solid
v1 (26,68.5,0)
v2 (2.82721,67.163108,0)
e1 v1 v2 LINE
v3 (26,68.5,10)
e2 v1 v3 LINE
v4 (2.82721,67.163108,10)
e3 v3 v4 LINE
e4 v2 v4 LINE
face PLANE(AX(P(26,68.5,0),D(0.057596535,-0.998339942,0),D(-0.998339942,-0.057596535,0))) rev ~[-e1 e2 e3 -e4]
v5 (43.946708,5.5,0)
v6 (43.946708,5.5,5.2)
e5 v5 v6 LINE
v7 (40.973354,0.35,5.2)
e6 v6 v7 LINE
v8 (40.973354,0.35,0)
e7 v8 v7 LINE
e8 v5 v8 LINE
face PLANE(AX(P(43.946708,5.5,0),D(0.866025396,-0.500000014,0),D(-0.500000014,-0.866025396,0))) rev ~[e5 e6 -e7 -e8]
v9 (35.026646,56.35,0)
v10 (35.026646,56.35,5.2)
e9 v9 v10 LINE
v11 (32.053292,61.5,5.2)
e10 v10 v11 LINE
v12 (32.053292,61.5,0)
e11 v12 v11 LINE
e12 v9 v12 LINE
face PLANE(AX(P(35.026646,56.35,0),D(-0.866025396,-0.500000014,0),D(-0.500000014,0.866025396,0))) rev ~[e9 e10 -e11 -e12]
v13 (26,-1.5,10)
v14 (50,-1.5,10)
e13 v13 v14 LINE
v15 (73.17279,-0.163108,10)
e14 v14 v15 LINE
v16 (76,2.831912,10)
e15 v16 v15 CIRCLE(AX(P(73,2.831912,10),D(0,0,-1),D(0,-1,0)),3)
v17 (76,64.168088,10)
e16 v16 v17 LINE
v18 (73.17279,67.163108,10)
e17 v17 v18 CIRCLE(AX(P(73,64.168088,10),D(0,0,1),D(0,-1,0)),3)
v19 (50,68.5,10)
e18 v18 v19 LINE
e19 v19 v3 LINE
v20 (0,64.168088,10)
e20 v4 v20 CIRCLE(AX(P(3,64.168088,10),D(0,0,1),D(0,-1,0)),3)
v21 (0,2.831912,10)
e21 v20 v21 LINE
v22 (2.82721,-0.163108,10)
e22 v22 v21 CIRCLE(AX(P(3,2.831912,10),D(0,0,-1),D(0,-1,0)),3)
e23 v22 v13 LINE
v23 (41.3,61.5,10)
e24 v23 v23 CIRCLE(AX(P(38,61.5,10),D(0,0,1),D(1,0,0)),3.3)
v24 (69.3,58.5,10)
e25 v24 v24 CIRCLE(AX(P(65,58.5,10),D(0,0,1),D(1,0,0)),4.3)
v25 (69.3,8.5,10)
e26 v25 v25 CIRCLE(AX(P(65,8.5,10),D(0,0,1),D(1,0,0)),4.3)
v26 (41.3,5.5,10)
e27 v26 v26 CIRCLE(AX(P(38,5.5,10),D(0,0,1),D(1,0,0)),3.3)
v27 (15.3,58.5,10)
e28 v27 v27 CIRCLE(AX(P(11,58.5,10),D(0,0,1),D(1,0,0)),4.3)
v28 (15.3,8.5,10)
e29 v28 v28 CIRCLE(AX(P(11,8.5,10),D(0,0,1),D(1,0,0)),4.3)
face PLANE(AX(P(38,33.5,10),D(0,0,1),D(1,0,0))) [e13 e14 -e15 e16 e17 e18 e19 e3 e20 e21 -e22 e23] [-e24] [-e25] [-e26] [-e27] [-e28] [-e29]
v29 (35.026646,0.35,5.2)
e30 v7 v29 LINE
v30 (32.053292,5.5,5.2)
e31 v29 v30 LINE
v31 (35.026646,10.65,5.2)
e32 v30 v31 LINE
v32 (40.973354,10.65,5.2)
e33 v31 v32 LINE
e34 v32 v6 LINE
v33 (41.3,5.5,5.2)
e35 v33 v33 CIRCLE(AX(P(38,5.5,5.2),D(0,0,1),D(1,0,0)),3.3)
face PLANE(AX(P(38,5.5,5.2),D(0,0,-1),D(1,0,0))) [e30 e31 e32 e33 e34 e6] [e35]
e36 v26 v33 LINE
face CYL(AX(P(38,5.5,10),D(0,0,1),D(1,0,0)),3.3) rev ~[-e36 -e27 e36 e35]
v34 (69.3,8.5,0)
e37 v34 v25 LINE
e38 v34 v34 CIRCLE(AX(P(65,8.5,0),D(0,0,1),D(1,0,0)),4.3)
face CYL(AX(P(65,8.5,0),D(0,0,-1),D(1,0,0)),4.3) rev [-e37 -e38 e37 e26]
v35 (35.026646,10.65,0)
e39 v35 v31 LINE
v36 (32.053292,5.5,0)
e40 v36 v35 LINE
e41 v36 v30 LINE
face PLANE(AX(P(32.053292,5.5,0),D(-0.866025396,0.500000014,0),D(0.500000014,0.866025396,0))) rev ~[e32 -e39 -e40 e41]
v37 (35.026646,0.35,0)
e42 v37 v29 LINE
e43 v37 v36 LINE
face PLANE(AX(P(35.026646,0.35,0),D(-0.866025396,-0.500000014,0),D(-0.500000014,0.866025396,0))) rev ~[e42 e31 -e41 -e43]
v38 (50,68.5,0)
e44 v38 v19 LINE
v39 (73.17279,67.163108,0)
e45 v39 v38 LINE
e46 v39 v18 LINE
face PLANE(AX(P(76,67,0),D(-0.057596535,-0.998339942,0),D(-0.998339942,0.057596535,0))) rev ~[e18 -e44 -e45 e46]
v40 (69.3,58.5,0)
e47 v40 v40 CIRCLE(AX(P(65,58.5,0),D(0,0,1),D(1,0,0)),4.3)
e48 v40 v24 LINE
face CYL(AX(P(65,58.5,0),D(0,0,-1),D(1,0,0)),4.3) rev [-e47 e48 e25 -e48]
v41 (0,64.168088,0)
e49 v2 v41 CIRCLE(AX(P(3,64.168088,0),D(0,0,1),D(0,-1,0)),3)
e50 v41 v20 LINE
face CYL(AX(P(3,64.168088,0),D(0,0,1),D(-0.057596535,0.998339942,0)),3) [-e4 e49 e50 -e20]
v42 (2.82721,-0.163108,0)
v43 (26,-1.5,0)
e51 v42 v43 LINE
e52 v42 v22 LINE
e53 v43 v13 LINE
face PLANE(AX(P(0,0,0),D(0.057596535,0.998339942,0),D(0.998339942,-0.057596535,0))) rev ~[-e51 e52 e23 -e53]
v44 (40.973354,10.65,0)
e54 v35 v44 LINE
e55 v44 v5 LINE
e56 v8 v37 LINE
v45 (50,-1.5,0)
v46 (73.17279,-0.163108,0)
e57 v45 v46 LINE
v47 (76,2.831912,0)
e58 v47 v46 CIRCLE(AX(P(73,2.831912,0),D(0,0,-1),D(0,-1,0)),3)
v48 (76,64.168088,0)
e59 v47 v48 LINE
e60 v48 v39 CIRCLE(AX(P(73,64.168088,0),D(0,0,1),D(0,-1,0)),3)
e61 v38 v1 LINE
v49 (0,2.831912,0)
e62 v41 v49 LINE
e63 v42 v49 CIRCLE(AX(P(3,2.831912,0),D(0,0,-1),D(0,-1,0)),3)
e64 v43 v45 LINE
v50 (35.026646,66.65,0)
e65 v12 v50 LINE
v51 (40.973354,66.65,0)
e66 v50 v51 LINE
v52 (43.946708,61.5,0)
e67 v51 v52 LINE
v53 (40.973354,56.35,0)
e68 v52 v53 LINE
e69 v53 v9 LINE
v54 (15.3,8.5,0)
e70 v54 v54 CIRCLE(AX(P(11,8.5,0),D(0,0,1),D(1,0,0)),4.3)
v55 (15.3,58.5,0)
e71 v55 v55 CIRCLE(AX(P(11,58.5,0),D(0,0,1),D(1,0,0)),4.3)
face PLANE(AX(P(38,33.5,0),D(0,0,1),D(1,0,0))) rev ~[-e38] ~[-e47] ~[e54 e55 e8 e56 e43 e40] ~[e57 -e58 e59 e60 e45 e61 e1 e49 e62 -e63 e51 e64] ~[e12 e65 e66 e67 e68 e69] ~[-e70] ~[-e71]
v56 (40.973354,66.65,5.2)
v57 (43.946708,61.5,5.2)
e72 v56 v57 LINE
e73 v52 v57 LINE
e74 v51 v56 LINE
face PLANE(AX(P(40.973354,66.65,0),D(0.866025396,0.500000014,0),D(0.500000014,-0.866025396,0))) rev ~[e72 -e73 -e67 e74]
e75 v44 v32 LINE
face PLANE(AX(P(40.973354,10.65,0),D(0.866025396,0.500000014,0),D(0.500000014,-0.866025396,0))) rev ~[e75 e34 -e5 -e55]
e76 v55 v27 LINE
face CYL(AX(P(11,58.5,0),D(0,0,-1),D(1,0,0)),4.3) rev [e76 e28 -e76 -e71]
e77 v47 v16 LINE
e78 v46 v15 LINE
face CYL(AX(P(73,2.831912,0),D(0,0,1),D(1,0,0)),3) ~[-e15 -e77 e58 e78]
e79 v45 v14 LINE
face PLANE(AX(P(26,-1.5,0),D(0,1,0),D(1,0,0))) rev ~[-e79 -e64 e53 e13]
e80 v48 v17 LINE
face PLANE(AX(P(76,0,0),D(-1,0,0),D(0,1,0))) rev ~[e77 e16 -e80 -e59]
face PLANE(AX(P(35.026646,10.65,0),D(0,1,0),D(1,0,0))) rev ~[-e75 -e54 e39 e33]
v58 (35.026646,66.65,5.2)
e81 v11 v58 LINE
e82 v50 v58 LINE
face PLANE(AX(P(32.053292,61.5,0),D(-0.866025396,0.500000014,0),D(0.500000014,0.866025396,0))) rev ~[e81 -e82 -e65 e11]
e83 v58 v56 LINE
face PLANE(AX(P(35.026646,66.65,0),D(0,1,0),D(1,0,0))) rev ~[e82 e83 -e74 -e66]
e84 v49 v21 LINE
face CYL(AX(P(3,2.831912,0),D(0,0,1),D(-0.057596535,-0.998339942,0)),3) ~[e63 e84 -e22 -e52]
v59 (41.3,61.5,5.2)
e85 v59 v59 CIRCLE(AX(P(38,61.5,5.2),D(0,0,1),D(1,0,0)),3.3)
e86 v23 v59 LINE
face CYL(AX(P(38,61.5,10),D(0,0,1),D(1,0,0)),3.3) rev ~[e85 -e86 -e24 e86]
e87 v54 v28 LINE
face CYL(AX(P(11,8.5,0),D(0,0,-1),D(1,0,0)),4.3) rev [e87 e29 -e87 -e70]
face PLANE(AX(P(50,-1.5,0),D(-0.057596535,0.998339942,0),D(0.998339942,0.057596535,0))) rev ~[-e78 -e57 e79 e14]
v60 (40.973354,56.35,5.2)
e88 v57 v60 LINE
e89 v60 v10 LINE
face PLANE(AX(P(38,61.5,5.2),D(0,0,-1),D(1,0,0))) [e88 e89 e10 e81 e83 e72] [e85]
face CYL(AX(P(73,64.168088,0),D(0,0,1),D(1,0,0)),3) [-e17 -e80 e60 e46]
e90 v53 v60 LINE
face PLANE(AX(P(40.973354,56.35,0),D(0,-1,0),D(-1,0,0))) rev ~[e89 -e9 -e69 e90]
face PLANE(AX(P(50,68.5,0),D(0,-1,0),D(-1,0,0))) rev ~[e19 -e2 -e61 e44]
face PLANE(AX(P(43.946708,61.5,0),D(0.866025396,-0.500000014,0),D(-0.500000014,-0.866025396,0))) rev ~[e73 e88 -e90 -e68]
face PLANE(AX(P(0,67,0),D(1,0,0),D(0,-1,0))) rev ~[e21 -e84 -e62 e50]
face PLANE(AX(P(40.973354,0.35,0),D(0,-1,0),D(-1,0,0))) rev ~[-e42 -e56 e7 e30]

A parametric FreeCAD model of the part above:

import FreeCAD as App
import Part
import Sketcher
from FreeCAD import Vector
Q = App.Units.Quantity


def edges_at(feature, points):
    """Names of the edges that pass closest to the given points."""
    edges = feature.Shape.Edges
    near = lambda p: min(range(len(edges)), key=lambda i: edges[i].distToShape(Part.Vertex(*p))[0])
    return sorted({f"Edge{near(p) + 1}" for p in points})

doc = App.newDocument("Part")
body = doc.addObject("PartDesign::Body", "Body")

# Sketch on XY plane
sketch1 = body.newObject("Sketcher::SketchObject", "Sketch")
sketch1.AttachmentSupport = (doc.getObject("XY_Plane"), [""])
sketch1.MapMode = "FlatFace"
sketch1.addGeometry([
    Part.LineSegment(Vector(76, 0, 0), Vector(76, 67, 0)),  # 0
    Part.LineSegment(Vector(76, 67, 0), Vector(50, 68.5, 0)),  # 1
    Part.LineSegment(Vector(50, 68.5, 0), Vector(26, 68.5, 0)),  # 2
    Part.LineSegment(Vector(26, 68.5, 0), Vector(0, 67, 0)),  # 3
    Part.LineSegment(Vector(0, 67, 0), Vector(0, 0, 0)),  # 4
    Part.LineSegment(Vector(0, 0, 0), Vector(26, -1.5, 0)),  # 5
    Part.LineSegment(Vector(26, -1.5, 0), Vector(50, -1.5, 0)),  # 6
    Part.LineSegment(Vector(50, -1.5, 0), Vector(76, 0, 0)),  # 7
    Part.Circle(Vector(11, 8.5, 0), Vector(0, 0, 1), 4.3),  # 8
    Part.Circle(Vector(65, 8.5, 0), Vector(0, 0, 1), 4.3),  # 9
    Part.Circle(Vector(11, 58.5, 0), Vector(0, 0, 1), 4.3),  # 10
    Part.Circle(Vector(65, 58.5, 0), Vector(0, 0, 1), 4.3),  # 11
], False)
sketch1.addConstraint([
    Sketcher.Constraint("Coincident", 0, 2, 1, 1),
    Sketcher.Constraint("Coincident", 1, 2, 2, 1),
    Sketcher.Constraint("Coincident", 2, 2, 3, 1),
    Sketcher.Constraint("Coincident", 3, 2, 4, 1),
    Sketcher.Constraint("Coincident", 4, 2, 5, 1),
    Sketcher.Constraint("Coincident", 5, 2, 6, 1),
    Sketcher.Constraint("Coincident", 6, 2, 7, 1),
    Sketcher.Constraint("Coincident", 7, 2, 0, 1),
    Sketcher.Constraint("Vertical", 0),
    Sketcher.Constraint("Horizontal", 2),
    Sketcher.Constraint("Vertical", 4),
    Sketcher.Constraint("Horizontal", 6),
    Sketcher.Constraint("Coincident", 4, 2, -1, 1),
    Sketcher.Constraint("Equal", 8, 9),
    Sketcher.Constraint("Equal", 9, 10),
    Sketcher.Constraint("Equal", 10, 11),
    Sketcher.Constraint("PointOnObject", 7, 2, -1),
    Sketcher.Constraint("Parallel", 1, 5),
    Sketcher.Constraint("Parallel", 3, 7),
    Sketcher.Constraint("Horizontal", 8, 3, 9, 3),
    Sketcher.Constraint("Horizontal", 10, 3, 11, 3),
    Sketcher.Constraint("Horizontal", 0, 2, 3, 2),
    Sketcher.Constraint("Vertical", 8, 3, 10, 3),
    Sketcher.Constraint("Vertical", 9, 3, 11, 3),
    Sketcher.Constraint("Vertical", 2, 2, 5, 2),
    Sketcher.Constraint("Vertical", 1, 2, 6, 2),
    Sketcher.Constraint("Diameter", 8, 8.6),
    Sketcher.Constraint("DistanceX", 2, 2, 2, 1, 24.0),
    Sketcher.Constraint("DistanceY", 0, 1, 0, 2, 67.0),
    Sketcher.Constraint("DistanceX", -1, 1, 8, 3, 11.0),
    Sketcher.Constraint("DistanceX", -1, 1, 9, 3, 65.0),
    Sketcher.Constraint("DistanceX", -1, 1, 0, 2, 76.0),
    Sketcher.Constraint("DistanceY", 8, 3, 10, 3, 50.0),
    Sketcher.Constraint("DistanceY", 11, 3, 1, 2, 10.0),
    Sketcher.Constraint("DistanceY", 5, 2, 8, 3, 10.0),
])
pad1 = body.newObject("PartDesign::Pad", "Pad")
pad1.Profile = sketch1
pad1.Length = 10

# Sketch on XY plane
sketch2 = body.newObject("Sketcher::SketchObject", "Sketch001")
sketch2.AttachmentSupport = (doc.getObject("XY_Plane"), [""])
sketch2.MapMode = "FlatFace"
sketch2.AttachmentOffset = App.Placement(Vector(0, 0, 10), App.Rotation())
sketch2.addGeometry([
    Part.Circle(Vector(38, 61.5, 0), Vector(0, 0, 1), 3.3),
    Part.Circle(Vector(38, 5.5, 0), Vector(0, 0, 1), 3.3),
], False)
sketch2.addConstraint([
    Sketcher.Constraint("Equal", 0, 1),
    Sketcher.Constraint("Vertical", 0, 3, 1, 3),
    Sketcher.Constraint("Diameter", 0, 6.6),
    Sketcher.Constraint("DistanceX", -1, 1, 0, 3, 38.0),
    Sketcher.Constraint("DistanceY", 1, 3, 0, 3, 56.0),
    Sketcher.Constraint("DistanceY", -1, 1, 0, 3, 61.5),
])
pocket1 = body.newObject("PartDesign::Pocket", "Pocket")
pocket1.Profile = sketch2
pocket1.Type = "ThroughAll"

# Sketch on XY plane
sketch3 = body.newObject("Sketcher::SketchObject", "Sketch002")
sketch3.AttachmentSupport = (doc.getObject("XY_Plane"), [""])
sketch3.MapMode = "FlatFace"
sketch3.addGeometry([
    Part.LineSegment(Vector(41, 11, 0), Vector(44, 6, 0)),  # 0
    Part.LineSegment(Vector(44, 6, 0), Vector(41, 0, 0)),  # 1
    Part.LineSegment(Vector(41, 0, 0), Vector(35, 0, 0)),  # 2
    Part.LineSegment(Vector(35, 0, 0), Vector(32, 6, 0)),  # 3
    Part.LineSegment(Vector(32, 6, 0), Vector(35, 11, 0)),  # 4
    Part.LineSegment(Vector(35, 11, 0), Vector(41, 11, 0)),  # 5
    Part.LineSegment(Vector(44, 62, 0), Vector(41, 56, 0)),  # 6
    Part.LineSegment(Vector(41, 56, 0), Vector(35, 56, 0)),  # 7
    Part.LineSegment(Vector(35, 56, 0), Vector(32, 62, 0)),  # 8
    Part.LineSegment(Vector(32, 62, 0), Vector(35, 67, 0)),  # 9
    Part.LineSegment(Vector(35, 67, 0), Vector(41, 67, 0)),  # 10
    Part.LineSegment(Vector(41, 67, 0), Vector(44, 62, 0)),  # 11
], False)
sketch3.addConstraint([
    Sketcher.Constraint("Coincident", 0, 2, 1, 1),
    Sketcher.Constraint("Coincident", 1, 2, 2, 1),
    Sketcher.Constraint("Coincident", 2, 2, 3, 1),
    Sketcher.Constraint("Coincident", 3, 2, 4, 1),
    Sketcher.Constraint("Coincident", 4, 2, 5, 1),
    Sketcher.Constraint("Coincident", 5, 2, 0, 1),
    Sketcher.Constraint("Coincident", 6, 2, 7, 1),
    Sketcher.Constraint("Coincident", 7, 2, 8, 1),
    Sketcher.Constraint("Coincident", 8, 2, 9, 1),
    Sketcher.Constraint("Coincident", 9, 2, 10, 1),
    Sketcher.Constraint("Coincident", 10, 2, 11, 1),
    Sketcher.Constraint("Coincident", 11, 2, 6, 1),
    Sketcher.Constraint("Horizontal", 2),
    Sketcher.Constraint("Horizontal", 5),
    Sketcher.Constraint("Horizontal", 7),
    Sketcher.Constraint("Horizontal", 10),
    Sketcher.Constraint("Parallel", 0, 3),
    Sketcher.Constraint("Parallel", 1, 4),
    Sketcher.Constraint("Parallel", 4, 6),
    Sketcher.Constraint("Parallel", 3, 8),
    Sketcher.Constraint("Parallel", 6, 9),
    Sketcher.Constraint("Parallel", 8, 11),
    Sketcher.Constraint("Horizontal", 0, 2, 3, 2),
    Sketcher.Constraint("Horizontal", 8, 2, 11, 2),
    Sketcher.Constraint("Vertical", 2, 2, 4, 2),
    Sketcher.Constraint("Vertical", 1, 2, 5, 2),
    Sketcher.Constraint("Vertical", 5, 2, 6, 2),
    Sketcher.Constraint("Vertical", 4, 2, 7, 2),
    Sketcher.Constraint("Vertical", 3, 2, 8, 2),
    Sketcher.Constraint("Vertical", 7, 2, 9, 2),
    Sketcher.Constraint("Angle", 0, Q("-59.999999 deg")),
    Sketcher.Constraint("DistanceY", 1, 2, 6, 2, 56.0),
    Sketcher.Constraint("DistanceY", -1, 1, 0, 2, 5.5),
    Sketcher.Constraint("DistanceY", 2, 2, 4, 2, 10.3),
    Sketcher.Constraint("DistanceX", 2, 2, 2, 1, 5.946708),
    Sketcher.Constraint("DistanceX", -1, 1, 0, 2, 43.946708),
])
pocket2 = body.newObject("PartDesign::Pocket", "Pocket001")
pocket2.Profile = sketch3
pocket2.Length = 5.2
pocket2.Reversed = True
doc.recompute()

fillet = body.newObject("PartDesign::Fillet", "Fillet")
fillet.Base = (pocket2, edges_at(pocket2, [
    (0, 67, 5),
    (0, 0, 5),
    (76, 0, 5),
    (76, 67, 5),
]))
fillet.Radius = 3

doc.recompute()
